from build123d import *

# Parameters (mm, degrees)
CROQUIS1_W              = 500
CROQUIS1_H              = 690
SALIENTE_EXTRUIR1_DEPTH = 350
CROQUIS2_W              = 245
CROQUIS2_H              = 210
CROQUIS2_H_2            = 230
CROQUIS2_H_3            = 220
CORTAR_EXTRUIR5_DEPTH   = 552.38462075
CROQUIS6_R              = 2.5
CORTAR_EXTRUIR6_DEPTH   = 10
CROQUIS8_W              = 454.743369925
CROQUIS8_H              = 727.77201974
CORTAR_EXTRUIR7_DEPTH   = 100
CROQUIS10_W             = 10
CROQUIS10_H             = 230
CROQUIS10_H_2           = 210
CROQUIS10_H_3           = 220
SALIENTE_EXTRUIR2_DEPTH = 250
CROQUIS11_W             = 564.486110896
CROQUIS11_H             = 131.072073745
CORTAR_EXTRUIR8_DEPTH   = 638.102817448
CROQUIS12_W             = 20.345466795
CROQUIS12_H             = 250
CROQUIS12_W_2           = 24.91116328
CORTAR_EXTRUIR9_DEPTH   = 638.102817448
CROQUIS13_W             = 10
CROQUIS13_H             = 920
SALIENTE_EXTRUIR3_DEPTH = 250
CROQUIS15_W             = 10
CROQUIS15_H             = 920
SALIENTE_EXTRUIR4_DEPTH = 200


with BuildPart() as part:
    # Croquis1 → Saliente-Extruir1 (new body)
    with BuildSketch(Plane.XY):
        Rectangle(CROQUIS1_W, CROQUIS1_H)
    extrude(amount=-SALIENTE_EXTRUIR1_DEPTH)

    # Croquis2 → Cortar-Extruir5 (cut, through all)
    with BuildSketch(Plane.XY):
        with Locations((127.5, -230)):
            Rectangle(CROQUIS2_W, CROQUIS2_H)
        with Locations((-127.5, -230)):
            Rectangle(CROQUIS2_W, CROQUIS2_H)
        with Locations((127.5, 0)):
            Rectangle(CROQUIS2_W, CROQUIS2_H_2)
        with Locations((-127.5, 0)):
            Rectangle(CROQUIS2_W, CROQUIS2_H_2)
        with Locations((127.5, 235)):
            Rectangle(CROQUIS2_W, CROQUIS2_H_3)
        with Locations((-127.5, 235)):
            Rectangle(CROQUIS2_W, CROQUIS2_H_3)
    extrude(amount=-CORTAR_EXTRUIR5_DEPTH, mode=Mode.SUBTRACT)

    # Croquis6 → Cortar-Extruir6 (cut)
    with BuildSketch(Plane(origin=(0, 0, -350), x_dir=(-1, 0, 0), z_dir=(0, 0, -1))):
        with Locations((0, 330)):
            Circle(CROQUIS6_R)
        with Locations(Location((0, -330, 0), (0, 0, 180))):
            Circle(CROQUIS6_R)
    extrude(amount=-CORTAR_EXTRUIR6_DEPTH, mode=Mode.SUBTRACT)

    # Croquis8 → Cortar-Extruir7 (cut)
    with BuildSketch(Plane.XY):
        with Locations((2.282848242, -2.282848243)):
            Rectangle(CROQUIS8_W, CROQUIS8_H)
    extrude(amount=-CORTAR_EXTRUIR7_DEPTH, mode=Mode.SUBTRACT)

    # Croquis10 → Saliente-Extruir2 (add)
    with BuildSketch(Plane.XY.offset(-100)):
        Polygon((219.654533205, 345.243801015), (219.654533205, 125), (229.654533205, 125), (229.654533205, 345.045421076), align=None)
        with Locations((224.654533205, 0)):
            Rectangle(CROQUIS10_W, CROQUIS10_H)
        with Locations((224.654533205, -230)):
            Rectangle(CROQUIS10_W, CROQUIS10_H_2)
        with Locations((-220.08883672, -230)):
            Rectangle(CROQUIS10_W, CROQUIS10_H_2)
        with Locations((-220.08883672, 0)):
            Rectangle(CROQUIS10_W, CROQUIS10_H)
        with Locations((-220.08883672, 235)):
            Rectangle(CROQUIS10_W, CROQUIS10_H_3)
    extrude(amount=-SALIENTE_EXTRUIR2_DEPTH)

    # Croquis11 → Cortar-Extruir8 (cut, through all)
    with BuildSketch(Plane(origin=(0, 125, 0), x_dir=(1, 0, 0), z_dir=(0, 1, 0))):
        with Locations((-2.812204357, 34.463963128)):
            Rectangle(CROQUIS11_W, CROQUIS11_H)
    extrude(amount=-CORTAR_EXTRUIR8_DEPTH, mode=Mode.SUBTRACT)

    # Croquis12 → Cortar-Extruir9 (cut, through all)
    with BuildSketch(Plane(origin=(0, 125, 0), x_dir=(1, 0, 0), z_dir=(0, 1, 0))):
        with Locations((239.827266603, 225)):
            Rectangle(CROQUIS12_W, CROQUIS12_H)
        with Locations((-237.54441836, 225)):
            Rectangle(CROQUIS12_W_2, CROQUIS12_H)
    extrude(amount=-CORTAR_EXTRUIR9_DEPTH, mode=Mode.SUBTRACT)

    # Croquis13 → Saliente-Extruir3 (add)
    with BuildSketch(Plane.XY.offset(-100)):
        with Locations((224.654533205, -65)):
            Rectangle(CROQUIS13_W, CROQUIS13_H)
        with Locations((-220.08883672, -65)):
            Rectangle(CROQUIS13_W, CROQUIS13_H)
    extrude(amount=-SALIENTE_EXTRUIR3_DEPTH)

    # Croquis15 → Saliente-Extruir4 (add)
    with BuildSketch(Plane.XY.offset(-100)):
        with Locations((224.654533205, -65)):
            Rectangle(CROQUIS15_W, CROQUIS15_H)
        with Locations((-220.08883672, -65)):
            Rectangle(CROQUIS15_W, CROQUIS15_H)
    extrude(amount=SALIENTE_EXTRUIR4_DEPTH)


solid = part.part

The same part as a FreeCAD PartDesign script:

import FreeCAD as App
import Part
import Sketcher
from FreeCAD import Vector


def add_polygon(sketch, points):
    """Adds a closed chain of lines whose ends are joined by coincident constraints."""
    first, n = sketch.GeometryCount, len(points)
    for a, b in zip(points, points[1:] + points[:1]):
        sketch.addGeometry(Part.LineSegment(App.Vector(*a, 0), App.Vector(*b, 0)), False)
    for i in range(n):
        sketch.addConstraint(Sketcher.Constraint("Coincident", first + i, 2, first + (i + 1) % n, 1))

doc = App.newDocument("Part")
body = doc.addObject("PartDesign::Body", "Body")

# Sketch on XY plane
sketch1 = body.newObject("Sketcher::SketchObject", "Sketch")
sketch1.AttachmentSupport = (doc.getObject("XY_Plane"), [""])
sketch1.MapMode = "FlatFace"
add_polygon(sketch1, [(-250, 345), (-250, -345), (250, -345), (250, 345)])  # lines 0-3
sketch1.addConstraint(Sketcher.Constraint("Vertical", 0))
sketch1.addConstraint(Sketcher.Constraint("Horizontal", 1))
sketch1.addConstraint(Sketcher.Constraint("Vertical", 2))
sketch1.addConstraint(Sketcher.Constraint("Horizontal", 3))
sketch1.addConstraint(Sketcher.Constraint("Symmetric", 0, 2, 2, 2, -1, 1))
sketch1.addConstraint(Sketcher.Constraint("DistanceX", 1, 1, 1, 2, 500.0))
sketch1.addConstraint(Sketcher.Constraint("DistanceY", 0, 2, 0, 1, 690.0))
pad1 = body.newObject("PartDesign::Pad", "Pad")
pad1.Profile = sketch1
pad1.Length = 350
pad1.Reversed = True

# Sketch on XY plane
sketch2 = body.newObject("Sketcher::SketchObject", "Sketch001")
sketch2.AttachmentSupport = (doc.getObject("XY_Plane"), [""])
sketch2.MapMode = "FlatFace"
add_polygon(sketch2, [(5, -125), (5, -335), (250, -335), (250, -125)])  # lines 0-3
add_polygon(sketch2, [(-250, -125), (-250, -335), (-5, -335), (-5, -125)])  # lines 4-7
add_polygon(sketch2, [(5, 115), (5, -115), (250, -115), (250, 115)])  # lines 8-11
add_polygon(sketch2, [(-250, 115), (-250, -115), (-5, -115), (-5, 115)])  # lines 12-15
add_polygon(sketch2, [(5, 345), (5, 125), (250, 125), (250, 345)])  # lines 16-19
add_polygon(sketch2, [(-250, 345), (-250, 125), (-5, 125), (-5, 345)])  # lines 20-23
sketch2.addConstraint(Sketcher.Constraint("Vertical", 0))
sketch2.addConstraint(Sketcher.Constraint("Horizontal", 1))
sketch2.addConstraint(Sketcher.Constraint("Vertical", 2))
sketch2.addConstraint(Sketcher.Constraint("Horizontal", 3))
sketch2.addConstraint(Sketcher.Constraint("Vertical", 4))
sketch2.addConstraint(Sketcher.Constraint("Horizontal", 5))
sketch2.addConstraint(Sketcher.Constraint("Vertical", 6))
sketch2.addConstraint(Sketcher.Constraint("Horizontal", 7))
sketch2.addConstraint(Sketcher.Constraint("Vertical", 8))
sketch2.addConstraint(Sketcher.Constraint("Horizontal", 9))
sketch2.addConstraint(Sketcher.Constraint("Vertical", 10))
sketch2.addConstraint(Sketcher.Constraint("Horizontal", 11))
sketch2.addConstraint(Sketcher.Constraint("Vertical", 12))
sketch2.addConstraint(Sketcher.Constraint("Horizontal", 13))
sketch2.addConstraint(Sketcher.Constraint("Vertical", 14))
sketch2.addConstraint(Sketcher.Constraint("Horizontal", 15))
sketch2.addConstraint(Sketcher.Constraint("Vertical", 16))
sketch2.addConstraint(Sketcher.Constraint("Horizontal", 17))
sketch2.addConstraint(Sketcher.Constraint("Vertical", 18))
sketch2.addConstraint(Sketcher.Constraint("Horizontal", 19))
sketch2.addConstraint(Sketcher.Constraint("Vertical", 20))
sketch2.addConstraint(Sketcher.Constraint("Horizontal", 21))
sketch2.addConstraint(Sketcher.Constraint("Vertical", 22))
sketch2.addConstraint(Sketcher.Constraint("Horizontal", 23))
sketch2.addConstraint(Sketcher.Constraint("Symmetric", 10, 2, 12, 2, -1, 1))
sketch2.addConstraint(Sketcher.Constraint("Symmetric", 8, 2, 14, 2, -1, 1))
sketch2.addConstraint(Sketcher.Constraint("Symmetric", 6, 2, 16, 2, -1, 1))
sketch2.addConstraint(Sketcher.Constraint("Symmetric", 2, 2, 20, 2, -1, 1))
sketch2.addConstraint(Sketcher.Constraint("Symmetric", 1, 2, 4, 2, -2))
sketch2.addConstraint(Sketcher.Constraint("Symmetric", 3, 2, 6, 2, -2))
sketch2.addConstraint(Sketcher.Constraint("Symmetric", 19, 2, 22, 2, -2))
sketch2.addConstraint(Sketcher.Constraint("Horizontal", 9, 2, 12, 2))
sketch2.addConstraint(Sketcher.Constraint("Vertical", 3, 2, 8, 2))
sketch2.addConstraint(Sketcher.Constraint("Vertical", 2, 2, 9, 2))
sketch2.addConstraint(Sketcher.Constraint("Vertical", 10, 2, 17, 2))
sketch2.addConstraint(Sketcher.Constraint("DistanceX", 1, 1, 1, 2, 245.0))
sketch2.addConstraint(Sketcher.Constraint("DistanceY", 0, 2, 0, 1, 210.0))
sketch2.addConstraint(Sketcher.Constraint("DistanceY", 8, 2, 8, 1, 230.0))
sketch2.addConstraint(Sketcher.Constraint("DistanceY", 16, 2, 16, 1, 220.0))
sketch2.addConstraint(Sketcher.Constraint("DistanceX", -1, 1, 0, 2, 5.0))
sketch2.addConstraint(Sketcher.Constraint("DistanceY", 0, 2, -1, 1, 335.0))
pocket1 = body.newObject("PartDesign::Pocket", "Pocket")
pocket1.Profile = sketch2
pocket1.Type = "ThroughAll"

# Sketch on XY plane
sketch3 = body.newObject("Sketcher::SketchObject", "Sketch002")
sketch3.AttachmentSupport = (doc.getObject("XY_Plane"), [""])
sketch3.MapMode = "FlatFace"
sketch3.AttachmentOffset = App.Placement(Vector(0, 0, -350), App.Rotation())
sketch3.addGeometry(Part.Circle(Vector(0, 330, 0), Vector(0, 0, 1), 2.5), False)
sketch3.addGeometry(Part.Circle(Vector(0, -330, 0), Vector(0, 0, 1), 2.5), False)
sketch3.addConstraint(Sketcher.Constraint("Equal", 0, 1))
sketch3.addConstraint(Sketcher.Constraint("Symmetric", 0, 3, 1, 3, -1, 1))
sketch3.addConstraint(Sketcher.Constraint("PointOnObject", 0, 3, -2))
sketch3.addConstraint(Sketcher.Constraint("Diameter", 0, 5.0))
sketch3.addConstraint(Sketcher.Constraint("DistanceY", -1, 1, 0, 3, 330.0))
pocket2 = body.newObject("PartDesign::Pocket", "Pocket001")
pocket2.Profile = sketch3
pocket2.Length = 10
pocket2.Reversed = True

# Sketch on XY plane
sketch4 = body.newObject("Sketcher::SketchObject", "Sketch003")
sketch4.AttachmentSupport = (doc.getObject("XY_Plane"), [""])
sketch4.MapMode = "FlatFace"
add_polygon(sketch4, [(-225, 362), (-225, -366), (230, -366), (230, 362)])  # lines 0-3
sketch4.addConstraint(Sketcher.Constraint("Vertical", 0))
sketch4.addConstraint(Sketcher.Constraint("Horizontal", 1))
sketch4.addConstraint(Sketcher.Constraint("Vertical", 2))
sketch4.addConstraint(Sketcher.Constraint("Horizontal", 3))
sketch4.addConstraint(Sketcher.Constraint("DistanceX", 1, 1, 1, 2, 454.74337))
sketch4.addConstraint(Sketcher.Constraint("DistanceY", 0, 2, 0, 1, 727.77202))
sketch4.addConstraint(Sketcher.Constraint("DistanceY", 0, 2, -1, 1, 366.168858))
sketch4.addConstraint(Sketcher.Constraint("DistanceX", 0, 2, -1, 1, 225.088837))
pocket3 = body.newObject("PartDesign::Pocket", "Pocket002")
pocket3.Profile = sketch4
pocket3.Length = 100

# Sketch on XY plane
sketch5 = body.newObject("Sketcher::SketchObject", "Sketch004")
sketch5.AttachmentSupport = (doc.getObject("XY_Plane"), [""])
sketch5.MapMode = "FlatFace"
sketch5.AttachmentOffset = App.Placement(Vector(0, 0, -100), App.Rotation())
add_polygon(sketch5, [(220, 345), (220, 125), (230, 125), (230, 345)])  # lines 0-3
add_polygon(sketch5, [(220, 115), (220, -115), (230, -115), (230, 115)])  # lines 4-7
add_polygon(sketch5, [(220, -125), (220, -335), (230, -335), (230, -125)])  # lines 8-11
add_polygon(sketch5, [(-225, -125), (-225, -335), (-215, -335), (-215, -125)])  # lines 12-15
add_polygon(sketch5, [(-225, 115), (-225, -115), (-215, -115), (-215, 115)])  # lines 16-19
add_polygon(sketch5, [(-225, 345), (-225, 125), (-215, 125), (-215, 345)])  # lines 20-23
sketch5.addConstraint(Sketcher.Constraint("Vertical", 0))
sketch5.addConstraint(Sketcher.Constraint("Horizontal", 1))
sketch5.addConstraint(Sketcher.Constraint("Vertical", 2))
sketch5.addConstraint(Sketcher.Constraint("Vertical", 4))
sketch5.addConstraint(Sketcher.Constraint("Horizontal", 5))
sketch5.addConstraint(Sketcher.Constraint("Vertical", 6))
sketch5.addConstraint(Sketcher.Constraint("Horizontal", 7))
sketch5.addConstraint(Sketcher.Constraint("Vertical", 8))
sketch5.addConstraint(Sketcher.Constraint("Horizontal", 9))
sketch5.addConstraint(Sketcher.Constraint("Vertical", 10))
sketch5.addConstraint(Sketcher.Constraint("Horizontal", 11))
sketch5.addConstraint(Sketcher.Constraint("Vertical", 12))
sketch5.addConstraint(Sketcher.Constraint("Horizontal", 13))
sketch5.addConstraint(Sketcher.Constraint("Vertical", 14))
sketch5.addConstraint(Sketcher.Constraint("Horizontal", 15))
sketch5.addConstraint(Sketcher.Constraint("Vertical", 16))
sketch5.addConstraint(Sketcher.Constraint("Horizontal", 17))
sketch5.addConstraint(Sketcher.Constraint("Vertical", 18))
sketch5.addConstraint(Sketcher.Constraint("Horizontal", 19))
sketch5.addConstraint(Sketcher.Constraint("Vertical", 20))
sketch5.addConstraint(Sketcher.Constraint("Horizontal", 21))
sketch5.addConstraint(Sketcher.Constraint("Vertical", 22))
sketch5.addConstraint(Sketcher.Constraint("Horizontal", 23))
sketch5.addConstraint(Sketcher.Constraint("Symmetric", 1, 2, 10, 2, -1))
sketch5.addConstraint(Sketcher.Constraint("Symmetric", 15, 2, 20, 2, -1))
sketch5.addConstraint(Sketcher.Constraint("Horizontal", 9, 2, 12, 2))
sketch5.addConstraint(Sketcher.Constraint("Horizontal", 11, 2, 14, 2))
sketch5.addConstraint(Sketcher.Constraint("Horizontal", 5, 2, 16, 2))
sketch5.addConstraint(Sketcher.Constraint("Horizontal", 7, 2, 18, 2))
sketch5.addConstraint(Sketcher.Constraint("Vertical", 3, 2, 4, 2))
sketch5.addConstraint(Sketcher.Constraint("Vertical", 2, 2, 5, 2))
sketch5.addConstraint(Sketcher.Constraint("Vertical", 7, 2, 8, 2))
sketch5.addConstraint(Sketcher.Constraint("Vertical", 15, 2, 16, 2))
sketch5.addConstraint(Sketcher.Constraint("Vertical", 14, 2, 17, 2))
sketch5.addConstraint(Sketcher.Constraint("Vertical", 18, 2, 21, 2))
sketch5.addConstraint(Sketcher.Constraint("Equal", 11, 13))
sketch5.addConstraint(Sketcher.Constraint("DistanceX", 1, 1, 1, 2, 10.0))
sketch5.addConstraint(Sketcher.Constraint("DistanceY", 4, 2, 4, 1, 230.0))
sketch5.addConstraint(Sketcher.Constraint("DistanceY", 8, 2, 8, 1, 210.0))
sketch5.addConstraint(Sketcher.Constraint("DistanceY", 20, 2, 20, 1, 220.0))
sketch5.addConstraint(Sketcher.Constraint("DistanceY", -1, 1, 0, 2, 125.0))
sketch5.addConstraint(Sketcher.Constraint("DistanceY", 4, 2, -1, 1, 115.0))
sketch5.addConstraint(Sketcher.Constraint("DistanceY", 0, 2, 0, 1, 220.243801))
sketch5.addConstraint(Sketcher.Constraint("DistanceY", 2, 1, 2, 2, 220.045421))
sketch5.addConstraint(Sketcher.Constraint("DistanceX", 12, 2, 8, 2, 444.74337))
sketch5.addConstraint(Sketcher.Constraint("DistanceX", -1, 1, 0, 2, 219.654533))
pad2 = body.newObject("PartDesign::Pad", "Pad001")
pad2.Profile = sketch5
pad2.Length = 250
pad2.Reversed = True

# Sketch on XZ plane
sketch6 = body.newObject("Sketcher::SketchObject", "Sketch005")
sketch6.AttachmentSupport = (doc.getObject("XZ_Plane"), [""])
sketch6.MapMode = "FlatFace"
sketch6.AttachmentOffset = App.Placement(Vector(0, 0, -125), App.Rotation())
add_polygon(sketch6, [(-285, -100), (-285, 31), (279, 31), (279, -100)])  # lines 0-3
sketch6.addConstraint(Sketcher.Constraint("Vertical", 0))
sketch6.addConstraint(Sketcher.Constraint("Horizontal", 1))
sketch6.addConstraint(Sketcher.Constraint("Vertical", 2))
sketch6.addConstraint(Sketcher.Constraint("Horizontal", 3))
sketch6.addConstraint(Sketcher.Constraint("DistanceY", 2, 2, -1, 1, 100.0))
sketch6.addConstraint(Sketcher.Constraint("DistanceX", 1, 1, 1, 2, 564.486111))
sketch6.addConstraint(Sketcher.Constraint("DistanceY", 0, 1, 0, 2, 131.072074))
sketch6.addConstraint(Sketcher.Constraint("DistanceX", 0, 2, -1, 1, 285.05526))
pocket4 = body.newObject("PartDesign::Pocket", "Pocket003")
pocket4.Profile = sketch6
pocket4.Type = "ThroughAll"
pocket4.Reversed = True

# Sketch on XZ plane
sketch7 = body.newObject("Sketcher::SketchObject", "Sketch006")
sketch7.AttachmentSupport = (doc.getObject("XZ_Plane"), [""])
sketch7.MapMode = "FlatFace"
sketch7.AttachmentOffset = App.Placement(Vector(0, 0, -125), App.Rotation())
add_polygon(sketch7, [(230, -350), (230, -100), (250, -100), (250, -350)])  # lines 0-3
add_polygon(sketch7, [(-250, -350), (-250, -100), (-225, -100), (-225, -350)])  # lines 4-7
sketch7.addConstraint(Sketcher.Constraint("Vertical", 0))
sketch7.addConstraint(Sketcher.Constraint("Horizontal", 1))
sketch7.addConstraint(Sketcher.Constraint("Vertical", 2))
sketch7.addConstraint(Sketcher.Constraint("Horizontal", 3))
sketch7.addConstraint(Sketcher.Constraint("Vertical", 4))
sketch7.addConstraint(Sketcher.Constraint("Horizontal", 5))
sketch7.addConstraint(Sketcher.Constraint("Vertical", 6))
sketch7.addConstraint(Sketcher.Constraint("Horizontal", 7))
sketch7.addConstraint(Sketcher.Constraint("Symmetric", 1, 2, 4, 2, -2))
sketch7.addConstraint(Sketcher.Constraint("Horizontal", 3, 2, 6, 2))
sketch7.addConstraint(Sketcher.Constraint("DistanceY", 0, 1, 0, 2, 250.0))
sketch7.addConstraint(Sketcher.Constraint("DistanceY", 0, 2, -1, 1, 100.0))
sketch7.addConstraint(Sketcher.Constraint("DistanceX", -1, 1, 1, 2, 250.0))
sketch7.addConstraint(Sketcher.Constraint("DistanceX", 1, 1, 1, 2, 20.345467))
sketch7.addConstraint(Sketcher.Constraint("DistanceX", 5, 1, 5, 2, 24.911163))
pocket5 = body.newObject("PartDesign::Pocket", "Pocket004")
pocket5.Profile = sketch7
pocket5.Type = "ThroughAll"
pocket5.Reversed = True

# Sketch on XY plane
sketch8 = body.newObject("Sketcher::SketchObject", "Sketch007")
sketch8.AttachmentSupport = (doc.getObject("XY_Plane"), [""])
sketch8.MapMode = "FlatFace"
sketch8.AttachmentOffset = App.Placement(Vector(0, 0, -100), App.Rotation())
add_polygon(sketch8, [(220, 395), (220, -525), (230, -525), (230, 395)])  # lines 0-3
add_polygon(sketch8, [(-225, 395), (-225, -525), (-215, -525), (-215, 395)])  # lines 4-7
sketch8.addConstraint(Sketcher.Constraint("Vertical", 0))
sketch8.addConstraint(Sketcher.Constraint("Horizontal", 1))
sketch8.addConstraint(Sketcher.Constraint("Vertical", 2))
sketch8.addConstraint(Sketcher.Constraint("Horizontal", 3))
sketch8.addConstraint(Sketcher.Constraint("Vertical", 4))
sketch8.addConstraint(Sketcher.Constraint("Horizontal", 5))
sketch8.addConstraint(Sketcher.Constraint("Vertical", 6))
sketch8.addConstraint(Sketcher.Constraint("Horizontal", 7))
sketch8.addConstraint(Sketcher.Constraint("Horizontal", 1, 2, 4, 2))
sketch8.addConstraint(Sketcher.Constraint("Horizontal", 3, 2, 6, 2))
sketch8.addConstraint(Sketcher.Constraint("Equal", 3, 5))
sketch8.addConstraint(Sketcher.Constraint("DistanceX", 1, 1, 1, 2, 10.0))
sketch8.addConstraint(Sketcher.Constraint("DistanceY", 0, 2, 0, 1, 920.0))
sketch8.addConstraint(Sketcher.Constraint("DistanceY", 0, 2, -1, 1, 525.0))
sketch8.addConstraint(Sketcher.Constraint("DistanceX", 4, 2, 0, 2, 444.74337))
sketch8.addConstraint(Sketcher.Constraint("DistanceX", -1, 1, 0, 2, 219.654533))
pad3 = body.newObject("PartDesign::Pad", "Pad002")
pad3.Profile = sketch8
pad3.Length = 250
pad3.Reversed = True

# Sketch on XY plane
sketch9 = body.newObject("Sketcher::SketchObject", "Sketch008")
sketch9.AttachmentSupport = (doc.getObject("XY_Plane"), [""])
sketch9.MapMode = "FlatFace"
sketch9.AttachmentOffset = App.Placement(Vector(0, 0, -100), App.Rotation())
add_polygon(sketch9, [(220, 395), (220, -525), (230, -525), (230, 395)])  # lines 0-3
add_polygon(sketch9, [(-225, 395), (-225, -525), (-215, -525), (-215, 395)])  # lines 4-7
sketch9.addConstraint(Sketcher.Constraint("Vertical", 0))
sketch9.addConstraint(Sketcher.Constraint("Horizontal", 1))
sketch9.addConstraint(Sketcher.Constraint("Vertical", 2))
sketch9.addConstraint(Sketcher.Constraint("Horizontal", 3))
sketch9.addConstraint(Sketcher.Constraint("Vertical", 4))
sketch9.addConstraint(Sketcher.Constraint("Horizontal", 5))
sketch9.addConstraint(Sketcher.Constraint("Vertical", 6))
sketch9.addConstraint(Sketcher.Constraint("Horizontal", 7))
sketch9.addConstraint(Sketcher.Constraint("Horizontal", 1, 2, 4, 2))
sketch9.addConstraint(Sketcher.Constraint("Horizontal", 3, 2, 6, 2))
sketch9.addConstraint(Sketcher.Constraint("Equal", 3, 5))
sketch9.addConstraint(Sketcher.Constraint("DistanceX", 1, 1, 1, 2, 10.0))
sketch9.addConstraint(Sketcher.Constraint("DistanceY", 0, 2, 0, 1, 920.0))
sketch9.addConstraint(Sketcher.Constraint("DistanceY", 0, 2, -1, 1, 525.0))
sketch9.addConstraint(Sketcher.Constraint("DistanceX", 4, 2, 0, 2, 444.74337))
sketch9.addConstraint(Sketcher.Constraint("DistanceX", -1, 1, 0, 2, 219.654533))
pad4 = body.newObject("PartDesign::Pad", "Pad003")
pad4.Profile = sketch9
pad4.Length = 200

doc.recompute()
